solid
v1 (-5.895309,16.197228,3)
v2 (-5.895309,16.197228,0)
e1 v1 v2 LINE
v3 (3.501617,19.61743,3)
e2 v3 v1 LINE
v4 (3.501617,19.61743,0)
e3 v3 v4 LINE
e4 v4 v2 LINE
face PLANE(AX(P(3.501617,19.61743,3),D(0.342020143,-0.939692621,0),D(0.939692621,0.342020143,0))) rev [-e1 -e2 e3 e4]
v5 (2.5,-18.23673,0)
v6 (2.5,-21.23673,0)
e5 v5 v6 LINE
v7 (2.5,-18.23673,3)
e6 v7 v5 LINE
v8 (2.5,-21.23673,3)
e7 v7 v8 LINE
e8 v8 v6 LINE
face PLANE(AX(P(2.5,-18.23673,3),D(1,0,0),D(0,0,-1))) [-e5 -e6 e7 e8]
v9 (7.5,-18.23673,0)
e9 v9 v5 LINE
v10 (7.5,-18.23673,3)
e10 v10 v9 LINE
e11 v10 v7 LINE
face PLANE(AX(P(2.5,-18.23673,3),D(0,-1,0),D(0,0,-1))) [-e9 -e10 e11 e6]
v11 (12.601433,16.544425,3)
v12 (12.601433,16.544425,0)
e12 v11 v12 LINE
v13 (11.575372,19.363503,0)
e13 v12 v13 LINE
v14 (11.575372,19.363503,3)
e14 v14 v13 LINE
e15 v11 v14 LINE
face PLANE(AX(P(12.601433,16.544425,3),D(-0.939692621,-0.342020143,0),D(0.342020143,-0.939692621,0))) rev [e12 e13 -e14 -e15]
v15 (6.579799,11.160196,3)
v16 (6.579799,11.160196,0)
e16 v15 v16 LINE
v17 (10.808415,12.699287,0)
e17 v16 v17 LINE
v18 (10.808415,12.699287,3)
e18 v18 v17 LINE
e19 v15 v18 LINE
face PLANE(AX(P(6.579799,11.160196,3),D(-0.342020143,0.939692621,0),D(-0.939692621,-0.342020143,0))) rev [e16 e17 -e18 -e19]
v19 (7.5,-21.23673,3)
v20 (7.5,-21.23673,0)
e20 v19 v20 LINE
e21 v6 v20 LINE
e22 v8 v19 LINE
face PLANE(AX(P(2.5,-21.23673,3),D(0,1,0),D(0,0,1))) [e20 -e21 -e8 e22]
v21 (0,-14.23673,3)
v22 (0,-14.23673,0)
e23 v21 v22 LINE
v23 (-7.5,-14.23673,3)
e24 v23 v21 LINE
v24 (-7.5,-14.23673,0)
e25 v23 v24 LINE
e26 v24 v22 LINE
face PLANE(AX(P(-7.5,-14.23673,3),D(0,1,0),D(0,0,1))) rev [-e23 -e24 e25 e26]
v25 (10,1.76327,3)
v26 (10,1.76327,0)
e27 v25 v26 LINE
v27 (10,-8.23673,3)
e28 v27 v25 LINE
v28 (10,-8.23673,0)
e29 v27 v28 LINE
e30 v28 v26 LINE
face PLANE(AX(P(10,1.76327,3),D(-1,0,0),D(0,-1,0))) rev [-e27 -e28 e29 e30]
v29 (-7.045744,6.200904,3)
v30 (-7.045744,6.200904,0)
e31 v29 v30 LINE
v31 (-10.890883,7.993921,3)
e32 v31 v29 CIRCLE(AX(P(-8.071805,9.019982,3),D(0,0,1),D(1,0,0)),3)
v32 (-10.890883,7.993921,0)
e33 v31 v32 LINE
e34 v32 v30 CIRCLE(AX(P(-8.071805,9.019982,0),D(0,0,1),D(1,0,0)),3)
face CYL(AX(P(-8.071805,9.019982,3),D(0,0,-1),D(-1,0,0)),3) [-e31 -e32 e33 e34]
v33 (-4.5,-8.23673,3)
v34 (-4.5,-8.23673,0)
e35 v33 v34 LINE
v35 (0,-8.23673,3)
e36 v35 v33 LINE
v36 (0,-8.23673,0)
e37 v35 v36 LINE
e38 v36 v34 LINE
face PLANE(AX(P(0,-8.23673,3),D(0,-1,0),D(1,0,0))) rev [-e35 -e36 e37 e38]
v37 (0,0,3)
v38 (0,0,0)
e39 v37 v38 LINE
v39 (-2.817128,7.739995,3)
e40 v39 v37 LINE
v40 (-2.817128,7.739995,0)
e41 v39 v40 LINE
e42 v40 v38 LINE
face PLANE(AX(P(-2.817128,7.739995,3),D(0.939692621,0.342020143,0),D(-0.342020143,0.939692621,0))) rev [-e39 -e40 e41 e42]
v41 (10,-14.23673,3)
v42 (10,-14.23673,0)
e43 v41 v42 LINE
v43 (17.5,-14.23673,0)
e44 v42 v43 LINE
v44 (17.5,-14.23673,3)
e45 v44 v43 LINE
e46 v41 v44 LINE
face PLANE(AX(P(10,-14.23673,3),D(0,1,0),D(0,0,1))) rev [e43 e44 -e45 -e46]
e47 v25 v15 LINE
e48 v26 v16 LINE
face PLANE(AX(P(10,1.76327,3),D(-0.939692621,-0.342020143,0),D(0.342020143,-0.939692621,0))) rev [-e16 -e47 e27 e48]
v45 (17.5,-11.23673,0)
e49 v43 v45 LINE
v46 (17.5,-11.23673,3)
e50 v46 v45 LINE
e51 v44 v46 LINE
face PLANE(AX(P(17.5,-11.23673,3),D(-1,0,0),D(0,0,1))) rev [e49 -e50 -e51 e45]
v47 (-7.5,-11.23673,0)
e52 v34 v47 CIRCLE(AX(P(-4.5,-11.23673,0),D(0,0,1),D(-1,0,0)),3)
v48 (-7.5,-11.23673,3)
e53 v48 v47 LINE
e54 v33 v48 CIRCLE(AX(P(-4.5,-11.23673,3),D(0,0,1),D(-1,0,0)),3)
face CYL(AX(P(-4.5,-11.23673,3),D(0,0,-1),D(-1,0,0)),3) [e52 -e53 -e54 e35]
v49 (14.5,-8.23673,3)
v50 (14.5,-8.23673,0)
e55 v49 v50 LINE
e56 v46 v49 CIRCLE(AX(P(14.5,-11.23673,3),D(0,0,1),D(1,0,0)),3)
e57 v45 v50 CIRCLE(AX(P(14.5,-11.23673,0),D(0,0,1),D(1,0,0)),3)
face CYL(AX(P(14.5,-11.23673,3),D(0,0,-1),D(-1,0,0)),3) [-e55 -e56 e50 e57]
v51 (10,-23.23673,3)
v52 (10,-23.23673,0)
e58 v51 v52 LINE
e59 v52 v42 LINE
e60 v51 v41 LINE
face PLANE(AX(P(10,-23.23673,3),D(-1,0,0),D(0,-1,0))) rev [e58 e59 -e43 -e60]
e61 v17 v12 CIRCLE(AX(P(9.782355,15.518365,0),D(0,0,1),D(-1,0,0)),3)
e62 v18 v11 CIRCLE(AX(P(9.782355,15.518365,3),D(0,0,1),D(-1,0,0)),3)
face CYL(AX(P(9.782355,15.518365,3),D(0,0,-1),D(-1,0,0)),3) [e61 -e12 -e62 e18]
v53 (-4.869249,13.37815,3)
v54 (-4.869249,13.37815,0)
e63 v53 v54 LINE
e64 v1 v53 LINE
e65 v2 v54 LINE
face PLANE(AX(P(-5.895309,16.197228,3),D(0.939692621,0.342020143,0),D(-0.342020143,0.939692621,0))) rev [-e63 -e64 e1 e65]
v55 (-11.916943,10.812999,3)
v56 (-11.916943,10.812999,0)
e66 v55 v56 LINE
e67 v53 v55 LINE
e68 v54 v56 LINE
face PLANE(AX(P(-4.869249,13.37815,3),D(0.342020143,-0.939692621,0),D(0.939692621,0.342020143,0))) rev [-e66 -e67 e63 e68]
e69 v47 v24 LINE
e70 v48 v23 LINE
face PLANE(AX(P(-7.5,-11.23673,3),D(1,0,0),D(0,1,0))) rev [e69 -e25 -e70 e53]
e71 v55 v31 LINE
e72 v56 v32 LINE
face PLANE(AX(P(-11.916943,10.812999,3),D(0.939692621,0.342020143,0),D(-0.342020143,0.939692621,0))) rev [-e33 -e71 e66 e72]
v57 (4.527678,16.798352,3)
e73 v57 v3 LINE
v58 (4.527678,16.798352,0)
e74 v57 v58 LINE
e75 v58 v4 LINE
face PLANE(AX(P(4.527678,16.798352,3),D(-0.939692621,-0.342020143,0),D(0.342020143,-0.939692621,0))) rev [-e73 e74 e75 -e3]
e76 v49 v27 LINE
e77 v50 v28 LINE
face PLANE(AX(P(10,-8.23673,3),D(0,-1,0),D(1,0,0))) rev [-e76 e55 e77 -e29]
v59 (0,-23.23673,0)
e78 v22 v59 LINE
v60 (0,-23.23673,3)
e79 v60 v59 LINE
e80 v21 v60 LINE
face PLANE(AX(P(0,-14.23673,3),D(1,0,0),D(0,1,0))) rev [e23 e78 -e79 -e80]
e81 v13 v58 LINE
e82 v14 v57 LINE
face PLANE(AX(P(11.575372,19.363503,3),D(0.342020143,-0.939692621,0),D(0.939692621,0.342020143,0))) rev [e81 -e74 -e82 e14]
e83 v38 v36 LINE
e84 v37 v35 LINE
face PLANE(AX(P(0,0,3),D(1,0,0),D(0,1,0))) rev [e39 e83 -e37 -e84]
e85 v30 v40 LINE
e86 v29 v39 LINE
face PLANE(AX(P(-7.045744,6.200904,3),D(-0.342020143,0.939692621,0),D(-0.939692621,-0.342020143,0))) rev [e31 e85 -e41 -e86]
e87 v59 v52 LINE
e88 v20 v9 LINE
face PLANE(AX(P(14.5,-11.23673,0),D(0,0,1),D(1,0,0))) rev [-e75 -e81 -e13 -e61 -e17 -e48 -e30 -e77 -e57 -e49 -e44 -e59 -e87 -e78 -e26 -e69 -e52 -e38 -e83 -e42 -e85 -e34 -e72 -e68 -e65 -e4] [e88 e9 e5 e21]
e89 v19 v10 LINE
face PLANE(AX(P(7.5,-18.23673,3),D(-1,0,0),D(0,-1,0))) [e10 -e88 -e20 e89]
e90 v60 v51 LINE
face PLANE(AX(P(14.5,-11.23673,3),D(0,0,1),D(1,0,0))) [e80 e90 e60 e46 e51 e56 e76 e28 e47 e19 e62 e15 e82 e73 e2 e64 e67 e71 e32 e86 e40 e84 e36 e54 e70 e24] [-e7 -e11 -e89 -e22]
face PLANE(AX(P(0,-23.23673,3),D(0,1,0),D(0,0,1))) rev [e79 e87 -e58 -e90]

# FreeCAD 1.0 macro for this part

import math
import FreeCAD as App
import Part
import Sketcher

V = App.Vector
Q = App.Units.Quantity


def add_polygon(sketch, points):
    """Adds a closed chain of lines whose ends are joined by coincident constraints."""
    first, n = sketch.GeometryCount, len(points)
    for a, b in zip(points, points[1:] + points[:1]):
        sketch.addGeometry(Part.LineSegment(App.Vector(*a, 0), App.Vector(*b, 0)), False)
    for i in range(n):
        sketch.addConstraint(Sketcher.Constraint("Coincident", first + i, 2, first + (i + 1) % n, 1))

doc = App.newDocument("Part")
params = doc.addObject("Spreadsheet::Sheet", "Params")
for row, (alias, value) in enumerate([
    ("sketch1_radius", "3 mm"),
    ("sketch1_width", "10 mm"),
    ("sketch1_width2", "5 mm"),
    ("sketch1_height", "9 mm"),
    ("sketch1_height2", "3 mm"),
    ("pad1_length", "3 mm"),
], start=1):
    params.set(f"A{row}", alias)
    params.set(f"B{row}", "=" + value)
    params.setAlias(f"B{row}", alias)

body = doc.addObject("PartDesign::Body", "Body")

# Sketch on XY plane
sketch1 = body.newObject("Sketcher::SketchObject", "Sketch")
sketch1.AttachmentSupport = (doc.getObject("XY_Plane"), [""])
sketch1.MapMode = "FlatFace"
sketch1.addGeometry(Part.LineSegment(V(0, -14.23673, 0), V(0, -23.23673, 0)), False)  # 0
sketch1.addGeometry(Part.LineSegment(V(0, -23.23673, 0), V(10, -23.23673, 0)), False)  # 1
sketch1.addGeometry(Part.LineSegment(V(10, -23.23673, 0), V(10, -14.23673, 0)), False)  # 2
sketch1.addGeometry(Part.LineSegment(V(10, -14.23673, 0), V(17.5, -14.23673, 0)), False)  # 3
sketch1.addGeometry(Part.LineSegment(V(17.5, -14.23673, 0), V(17.5, -11.23673, 0)), False)  # 4
sketch1.addGeometry(Part.ArcOfCircle(Part.Circle(V(14.5, -11.23673, 0), V(0, 0, 1), 3), math.radians(0), math.radians(90)), False)  # 5
sketch1.addGeometry(Part.LineSegment(V(14.5, -8.23673, 0), V(10, -8.23673, 0)), False)  # 6
sketch1.addGeometry(Part.LineSegment(V(10, -8.23673, 0), V(10, 1.76327, 0)), False)  # 7
sketch1.addGeometry(Part.LineSegment(V(10, 1.76327, 0), V(6.579799, 11.160196, 0)), False)  # 8
sketch1.addGeometry(Part.LineSegment(V(6.579799, 11.160196, 0), V(10.808415, 12.699287, 0)), False)  # 9
sketch1.addGeometry(Part.ArcOfCircle(Part.Circle(V(9.782355, 15.518365, 0), V(0, 0, 1), 3), math.radians(-70), math.radians(20)), False)  # 10
sketch1.addGeometry(Part.LineSegment(V(12.601433, 16.544425, 0), V(11.575372, 19.363503, 0)), False)  # 11
sketch1.addGeometry(Part.LineSegment(V(11.575372, 19.363503, 0), V(4.527678, 16.798352, 0)), False)  # 12
sketch1.addGeometry(Part.LineSegment(V(4.527678, 16.798352, 0), V(3.501617, 19.61743, 0)), False)  # 13
sketch1.addGeometry(Part.LineSegment(V(3.501617, 19.61743, 0), V(-5.895309, 16.197228, 0)), False)  # 14
sketch1.addGeometry(Part.LineSegment(V(-5.895309, 16.197228, 0), V(-4.869249, 13.37815, 0)), False)  # 15
sketch1.addGeometry(Part.LineSegment(V(-4.869249, 13.37815, 0), V(-11.916943, 10.812999, 0)), False)  # 16
sketch1.addGeometry(Part.LineSegment(V(-11.916943, 10.812999, 0), V(-10.890883, 7.993921, 0)), False)  # 17
sketch1.addGeometry(Part.ArcOfCircle(Part.Circle(V(-8.071805, 9.019982, 0), V(0, 0, 1), 3), math.radians(-160), math.radians(-70)), False)  # 18
sketch1.addGeometry(Part.LineSegment(V(-7.045744, 6.200904, 0), V(-2.817128, 7.739995, 0)), False)  # 19
sketch1.addGeometry(Part.LineSegment(V(-2.817128, 7.739995, 0), V(0, 0, 0)), False)  # 20
sketch1.addGeometry(Part.LineSegment(V(0, 0, 0), V(0, -8.23673, 0)), False)  # 21
sketch1.addGeometry(Part.LineSegment(V(0, -8.23673, 0), V(-4.5, -8.23673, 0)), False)  # 22
sketch1.addGeometry(Part.ArcOfCircle(Part.Circle(V(-4.5, -11.23673, 0), V(0, 0, 1), 3), math.radians(90), math.radians(180)), False)  # 23
sketch1.addGeometry(Part.LineSegment(V(-7.5, -11.23673, 0), V(-7.5, -14.23673, 0)), False)  # 24
sketch1.addGeometry(Part.LineSegment(V(-7.5, -14.23673, 0), V(0, -14.23673, 0)), False)  # 25
add_polygon(sketch1, [(7.5, -21.23673), (2.5, -21.23673), (2.5, -18.23673), (7.5, -18.23673)])  # lines 26-29
sketch1.addConstraint([
    Sketcher.Constraint("Coincident", 0, 2, 1, 1),
    Sketcher.Constraint("Coincident", 1, 2, 2, 1),
    Sketcher.Constraint("Coincident", 2, 2, 3, 1),
    Sketcher.Constraint("Coincident", 3, 2, 4, 1),
    Sketcher.Constraint("Tangent", 4, 2, 5, 1),
    Sketcher.Constraint("Tangent", 5, 2, 6, 1),
    Sketcher.Constraint("Coincident", 6, 2, 7, 1),
    Sketcher.Constraint("Coincident", 7, 2, 8, 1),
    Sketcher.Constraint("Coincident", 8, 2, 9, 1),
    Sketcher.Constraint("Tangent", 9, 2, 10, 1),
    Sketcher.Constraint("Tangent", 10, 2, 11, 1),
    Sketcher.Constraint("Coincident", 11, 2, 12, 1),
    Sketcher.Constraint("Coincident", 12, 2, 13, 1),
    Sketcher.Constraint("Coincident", 13, 2, 14, 1),
    Sketcher.Constraint("Coincident", 14, 2, 15, 1),
    Sketcher.Constraint("Coincident", 15, 2, 16, 1),
    Sketcher.Constraint("Coincident", 16, 2, 17, 1),
    Sketcher.Constraint("Tangent", 17, 2, 18, 1),
    Sketcher.Constraint("Tangent", 18, 2, 19, 1),
    Sketcher.Constraint("Coincident", 19, 2, 20, 1),
    Sketcher.Constraint("Coincident", 20, 2, 21, 1),
    Sketcher.Constraint("Coincident", 21, 2, 22, 1),
    Sketcher.Constraint("Tangent", 22, 2, 23, 1),
    Sketcher.Constraint("Tangent", 23, 2, 24, 1),
    Sketcher.Constraint("Coincident", 24, 2, 25, 1),
    Sketcher.Constraint("Coincident", 25, 2, 0, 1),
    Sketcher.Constraint("Vertical", 0),
    Sketcher.Constraint("Horizontal", 1),
    Sketcher.Constraint("Vertical", 2),
    Sketcher.Constraint("Horizontal", 3),
    Sketcher.Constraint("Vertical", 4),
    Sketcher.Constraint("Horizontal", 6),
    Sketcher.Constraint("Vertical", 7),
    Sketcher.Constraint("Vertical", 21),
    Sketcher.Constraint("Horizontal", 22),
    Sketcher.Constraint("Vertical", 24),
    Sketcher.Constraint("Horizontal", 25),
    Sketcher.Constraint("Horizontal", 26),
    Sketcher.Constraint("Vertical", 27),
    Sketcher.Constraint("Horizontal", 28),
    Sketcher.Constraint("Vertical", 29),
    Sketcher.Constraint("Coincident", 20, 2, -1, 1),
    Sketcher.Constraint("Equal", 5, 10),
    Sketcher.Constraint("Equal", 10, 18),
    Sketcher.Constraint("Equal", 18, 23),
    Sketcher.Constraint("PointOnObject", 0, 2, -2),
    Sketcher.Constraint("Perpendicular", 8, 9),
    Sketcher.Constraint("Perpendicular", 9, 11),
    Sketcher.Constraint("Perpendicular", 11, 12),
    Sketcher.Constraint("Perpendicular", 12, 13),
    Sketcher.Constraint("Perpendicular", 13, 14),
    Sketcher.Constraint("Perpendicular", 14, 15),
    Sketcher.Constraint("Perpendicular", 15, 16),
    Sketcher.Constraint("Perpendicular", 16, 17),
    Sketcher.Constraint("Perpendicular", 17, 19),
    Sketcher.Constraint("Perpendicular", 19, 20),
    Sketcher.Constraint("Horizontal", 5, 3, 23, 3),
    Sketcher.Constraint("Horizontal", 3, 2, 24, 2),
    Sketcher.Constraint("Vertical", 2, 2, 6, 2),
    Sketcher.Constraint("Equal", 6, 22),
    Sketcher.Constraint("Equal", 1, 7),
    Sketcher.Constraint("Equal", 24, 27),
    Sketcher.Constraint("Equal", 11, 13),
    Sketcher.Constraint("Equal", 8, 14),
    Sketcher.Constraint("Equal", 13, 15),
    Sketcher.Constraint("Equal", 12, 16),
    Sketcher.Constraint("Equal", 15, 17),
    Sketcher.Constraint("Equal", 9, 19),
    Sketcher.Constraint("Radius", 5, 3.0),
    Sketcher.Constraint("DistanceX", 1, 1, 1, 2, 10.0),
    Sketcher.Constraint("DistanceX", 26, 2, 26, 1, 5.0),
    Sketcher.Constraint("DistanceY", 0, 2, 0, 1, 9.0),
    Sketcher.Constraint("DistanceY", 4, 1, 4, 2, 3.0),
    Sketcher.Constraint("Angle", 8, Q("110 deg")),
    Sketcher.Constraint("Distance", 8, 10.0),
    Sketcher.Constraint("Distance", 11, 3.0),
    Sketcher.Constraint("DistanceX", 3, 1, 3, 2, 7.5),
    Sketcher.Constraint("DistanceY", 0, 2, 26, 2, 2.0),
    Sketcher.Constraint("DistanceX", 24, 2, 26, 2, 10.0),
    Sketcher.Constraint("Distance", 9, 4.5),
    Sketcher.Constraint("Distance", 12, 7.5),
])
sketch1.setExpression("Constraints[72]", "Params.sketch1_radius")
sketch1.setExpression("Constraints[73]", "Params.sketch1_width")
sketch1.setExpression("Constraints[74]", "Params.sketch1_width2")
sketch1.setExpression("Constraints[75]", "Params.sketch1_height")
sketch1.setExpression("Constraints[76]", "Params.sketch1_height2")
pad1 = body.newObject("PartDesign::Pad", "Pad")
pad1.Profile = sketch1
pad1.setExpression("Length", "Params.pad1_length")

doc.recompute()
